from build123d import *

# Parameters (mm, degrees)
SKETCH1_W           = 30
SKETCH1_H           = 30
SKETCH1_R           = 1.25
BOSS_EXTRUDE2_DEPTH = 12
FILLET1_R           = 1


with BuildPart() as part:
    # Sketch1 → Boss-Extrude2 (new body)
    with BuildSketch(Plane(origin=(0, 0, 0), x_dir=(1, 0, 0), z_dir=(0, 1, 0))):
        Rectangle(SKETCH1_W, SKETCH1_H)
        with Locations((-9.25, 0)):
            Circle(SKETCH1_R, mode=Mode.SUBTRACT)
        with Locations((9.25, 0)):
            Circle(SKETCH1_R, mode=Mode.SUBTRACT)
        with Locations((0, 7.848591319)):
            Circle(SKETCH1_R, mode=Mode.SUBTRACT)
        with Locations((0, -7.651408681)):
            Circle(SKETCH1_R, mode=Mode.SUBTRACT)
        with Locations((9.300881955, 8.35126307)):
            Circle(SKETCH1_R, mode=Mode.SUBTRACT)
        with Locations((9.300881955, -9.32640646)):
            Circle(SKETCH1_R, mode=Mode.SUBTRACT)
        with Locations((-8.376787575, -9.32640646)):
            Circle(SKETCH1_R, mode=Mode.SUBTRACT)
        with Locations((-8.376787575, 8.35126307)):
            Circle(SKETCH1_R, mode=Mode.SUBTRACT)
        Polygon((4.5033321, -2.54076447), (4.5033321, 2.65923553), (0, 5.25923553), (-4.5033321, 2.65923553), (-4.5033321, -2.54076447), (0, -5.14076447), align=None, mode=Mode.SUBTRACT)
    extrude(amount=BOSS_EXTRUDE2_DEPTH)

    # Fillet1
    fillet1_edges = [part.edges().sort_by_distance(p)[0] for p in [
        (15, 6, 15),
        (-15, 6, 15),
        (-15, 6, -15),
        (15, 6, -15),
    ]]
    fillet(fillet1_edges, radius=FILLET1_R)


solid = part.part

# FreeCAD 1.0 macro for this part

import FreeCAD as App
import Part
import Sketcher
Q = App.Units.Quantity


def edges_at(feature, points):
    """Names of the edges that pass closest to the given points."""
    edges = feature.Shape.Edges
    near = lambda p: min(range(len(edges)), key=lambda i: edges[i].distToShape(Part.Vertex(*p))[0])
    return sorted({f"Edge{near(p) + 1}" for p in points})

doc = App.newDocument("Part")
body = doc.addObject("PartDesign::Body", "Body")

# Sketch on XZ plane
sketch1 = doc.addObject("Sketcher::SketchObject", "Sketch")
body.addObject(sketch1)
sketch1.AttachmentSupport = (doc.XZ_Plane, [""])
sketch1.MapMode = "FlatFace"
sketch1.addGeometry([
    Part.LineSegment(App.Vector(-15, -15, 0), App.Vector(-15, 15, 0)),  # 0
    Part.LineSegment(App.Vector(-15, 15, 0), App.Vector(15, 15, 0)),  # 1
    Part.LineSegment(App.Vector(15, 15, 0), App.Vector(15, -15, 0)),  # 2
    Part.LineSegment(App.Vector(15, -15, 0), App.Vector(-15, -15, 0)),  # 3
    Part.Circle(App.Vector(-8.4, 9.3, 0), App.Vector(0, 0, 1), 1.2),  # 4
    Part.Circle(App.Vector(0, 7.7, 0), App.Vector(0, 0, 1), 1.2),  # 5
    Part.Circle(App.Vector(9.3, 9.3, 0), App.Vector(0, 0, 1), 1.2),  # 6
    Part.Circle(App.Vector(-9.2, 0, 0), App.Vector(0, 0, 1), 1.2),  # 7
    Part.LineSegment(App.Vector(4.5, -2.7, 0), App.Vector(4.5, 2.5, 0)),  # 8
    Part.LineSegment(App.Vector(4.5, 2.5, 0), App.Vector(0, 5.1, 0)),  # 9
    Part.LineSegment(App.Vector(0, 5.1, 0), App.Vector(-4.5, 2.5, 0)),  # 10
    Part.LineSegment(App.Vector(-4.5, 2.5, 0), App.Vector(-4.5, -2.7, 0)),  # 11
    Part.LineSegment(App.Vector(-4.5, -2.7, 0), App.Vector(0, -5.3, 0)),  # 12
    Part.LineSegment(App.Vector(0, -5.3, 0), App.Vector(4.5, -2.7, 0)),  # 13
    Part.Circle(App.Vector(-8.4, -8.4, 0), App.Vector(0, 0, 1), 1.2),  # 14
    Part.Circle(App.Vector(0, -7.8, 0), App.Vector(0, 0, 1), 1.2),  # 15
    Part.Circle(App.Vector(9.2, 0, 0), App.Vector(0, 0, 1), 1.2),  # 16
    Part.Circle(App.Vector(9.3, -8.4, 0), App.Vector(0, 0, 1), 1.2),  # 17
], False)
sketch1.addConstraint([
    Sketcher.Constraint("Coincident", 0, 2, 1, 1),
    Sketcher.Constraint("Coincident", 1, 2, 2, 1),
    Sketcher.Constraint("Coincident", 2, 2, 3, 1),
    Sketcher.Constraint("Coincident", 3, 2, 0, 1),
    Sketcher.Constraint("Coincident", 8, 2, 9, 1),
    Sketcher.Constraint("Coincident", 9, 2, 10, 1),
    Sketcher.Constraint("Coincident", 10, 2, 11, 1),
    Sketcher.Constraint("Coincident", 11, 2, 12, 1),
    Sketcher.Constraint("Coincident", 12, 2, 13, 1),
    Sketcher.Constraint("Coincident", 13, 2, 8, 1),
    Sketcher.Constraint("Vertical", 0),
    Sketcher.Constraint("Horizontal", 1),
    Sketcher.Constraint("Vertical", 2),
    Sketcher.Constraint("Horizontal", 3),
    Sketcher.Constraint("Vertical", 8),
    Sketcher.Constraint("Vertical", 11),
    Sketcher.Constraint("Equal", 4, 5),
    Sketcher.Constraint("Equal", 5, 6),
    Sketcher.Constraint("Equal", 6, 7),
    Sketcher.Constraint("Equal", 7, 14),
    Sketcher.Constraint("Equal", 14, 15),
    Sketcher.Constraint("Equal", 15, 16),
    Sketcher.Constraint("Equal", 16, 17),
    Sketcher.Constraint("Symmetric", 7, 3, 16, 3, -1, 1),
    Sketcher.Constraint("Symmetric", 0, 2, 2, 2, -1, 1),
    Sketcher.Constraint("Symmetric", 8, 2, 10, 2, -2),
    Sketcher.Constraint("PointOnObject", 5, 3, -2),
    Sketcher.Constraint("PointOnObject", 7, 3, -1),
    Sketcher.Constraint("PointOnObject", 15, 3, -2),
    Sketcher.Constraint("PointOnObject", 9, 2, -2),
    Sketcher.Constraint("PointOnObject", 12, 2, -2),
    Sketcher.Constraint("Parallel", 9, 12),
    Sketcher.Constraint("Parallel", 10, 13),
    Sketcher.Constraint("Horizontal", 4, 3, 6, 3),
    Sketcher.Constraint("Horizontal", 14, 3, 17, 3),
    Sketcher.Constraint("Vertical", 4, 3, 14, 3),
    Sketcher.Constraint("Vertical", 6, 3, 17, 3),
    Sketcher.Constraint("Equal", 3, 0),
    Sketcher.Constraint("Diameter", 4, 2.5),
    Sketcher.Constraint("DistanceX", 1, 1, 1, 2, 30.0),
    Sketcher.Constraint("Angle", 9, Q("150 deg")),
    Sketcher.Constraint("DistanceY", 8, 1, 8, 2, 5.2),
    Sketcher.Constraint("Distance", 9, 5.2),
    Sketcher.Constraint("DistanceY", 15, 3, 5, 3, 15.5),
    Sketcher.Constraint("DistanceX", 7, 3, 16, 3, 18.5),
    Sketcher.Constraint("DistanceY", -1, 1, 5, 3, 7.651409),
    Sketcher.Constraint("DistanceX", -1, 1, 6, 3, 9.300882),
    Sketcher.Constraint("DistanceX", 4, 3, 6, 3, 17.67767),
    Sketcher.Constraint("DistanceY", 14, 3, 4, 3, 17.67767),
    Sketcher.Constraint("DistanceY", 14, 3, 5, 3, 16.002672),
    Sketcher.Constraint("DistanceY", 8, 2, 6, 3, 6.785642),
])
pad1 = doc.addObject("PartDesign::Pad", "Pad")
body.addObject(pad1)
pad1.Profile = sketch1
pad1.Length = 12
pad1.Reversed = True
doc.recompute()

fillet = doc.addObject("PartDesign::Fillet", "Fillet")
body.addObject(fillet)
fillet.Base = (pad1, edges_at(pad1, [
    (15, 6, 15),
    (-15, 6, 15),
    (-15, 6, -15),
    (15, 6, -15),
]))
fillet.Radius = 1

doc.recompute()
